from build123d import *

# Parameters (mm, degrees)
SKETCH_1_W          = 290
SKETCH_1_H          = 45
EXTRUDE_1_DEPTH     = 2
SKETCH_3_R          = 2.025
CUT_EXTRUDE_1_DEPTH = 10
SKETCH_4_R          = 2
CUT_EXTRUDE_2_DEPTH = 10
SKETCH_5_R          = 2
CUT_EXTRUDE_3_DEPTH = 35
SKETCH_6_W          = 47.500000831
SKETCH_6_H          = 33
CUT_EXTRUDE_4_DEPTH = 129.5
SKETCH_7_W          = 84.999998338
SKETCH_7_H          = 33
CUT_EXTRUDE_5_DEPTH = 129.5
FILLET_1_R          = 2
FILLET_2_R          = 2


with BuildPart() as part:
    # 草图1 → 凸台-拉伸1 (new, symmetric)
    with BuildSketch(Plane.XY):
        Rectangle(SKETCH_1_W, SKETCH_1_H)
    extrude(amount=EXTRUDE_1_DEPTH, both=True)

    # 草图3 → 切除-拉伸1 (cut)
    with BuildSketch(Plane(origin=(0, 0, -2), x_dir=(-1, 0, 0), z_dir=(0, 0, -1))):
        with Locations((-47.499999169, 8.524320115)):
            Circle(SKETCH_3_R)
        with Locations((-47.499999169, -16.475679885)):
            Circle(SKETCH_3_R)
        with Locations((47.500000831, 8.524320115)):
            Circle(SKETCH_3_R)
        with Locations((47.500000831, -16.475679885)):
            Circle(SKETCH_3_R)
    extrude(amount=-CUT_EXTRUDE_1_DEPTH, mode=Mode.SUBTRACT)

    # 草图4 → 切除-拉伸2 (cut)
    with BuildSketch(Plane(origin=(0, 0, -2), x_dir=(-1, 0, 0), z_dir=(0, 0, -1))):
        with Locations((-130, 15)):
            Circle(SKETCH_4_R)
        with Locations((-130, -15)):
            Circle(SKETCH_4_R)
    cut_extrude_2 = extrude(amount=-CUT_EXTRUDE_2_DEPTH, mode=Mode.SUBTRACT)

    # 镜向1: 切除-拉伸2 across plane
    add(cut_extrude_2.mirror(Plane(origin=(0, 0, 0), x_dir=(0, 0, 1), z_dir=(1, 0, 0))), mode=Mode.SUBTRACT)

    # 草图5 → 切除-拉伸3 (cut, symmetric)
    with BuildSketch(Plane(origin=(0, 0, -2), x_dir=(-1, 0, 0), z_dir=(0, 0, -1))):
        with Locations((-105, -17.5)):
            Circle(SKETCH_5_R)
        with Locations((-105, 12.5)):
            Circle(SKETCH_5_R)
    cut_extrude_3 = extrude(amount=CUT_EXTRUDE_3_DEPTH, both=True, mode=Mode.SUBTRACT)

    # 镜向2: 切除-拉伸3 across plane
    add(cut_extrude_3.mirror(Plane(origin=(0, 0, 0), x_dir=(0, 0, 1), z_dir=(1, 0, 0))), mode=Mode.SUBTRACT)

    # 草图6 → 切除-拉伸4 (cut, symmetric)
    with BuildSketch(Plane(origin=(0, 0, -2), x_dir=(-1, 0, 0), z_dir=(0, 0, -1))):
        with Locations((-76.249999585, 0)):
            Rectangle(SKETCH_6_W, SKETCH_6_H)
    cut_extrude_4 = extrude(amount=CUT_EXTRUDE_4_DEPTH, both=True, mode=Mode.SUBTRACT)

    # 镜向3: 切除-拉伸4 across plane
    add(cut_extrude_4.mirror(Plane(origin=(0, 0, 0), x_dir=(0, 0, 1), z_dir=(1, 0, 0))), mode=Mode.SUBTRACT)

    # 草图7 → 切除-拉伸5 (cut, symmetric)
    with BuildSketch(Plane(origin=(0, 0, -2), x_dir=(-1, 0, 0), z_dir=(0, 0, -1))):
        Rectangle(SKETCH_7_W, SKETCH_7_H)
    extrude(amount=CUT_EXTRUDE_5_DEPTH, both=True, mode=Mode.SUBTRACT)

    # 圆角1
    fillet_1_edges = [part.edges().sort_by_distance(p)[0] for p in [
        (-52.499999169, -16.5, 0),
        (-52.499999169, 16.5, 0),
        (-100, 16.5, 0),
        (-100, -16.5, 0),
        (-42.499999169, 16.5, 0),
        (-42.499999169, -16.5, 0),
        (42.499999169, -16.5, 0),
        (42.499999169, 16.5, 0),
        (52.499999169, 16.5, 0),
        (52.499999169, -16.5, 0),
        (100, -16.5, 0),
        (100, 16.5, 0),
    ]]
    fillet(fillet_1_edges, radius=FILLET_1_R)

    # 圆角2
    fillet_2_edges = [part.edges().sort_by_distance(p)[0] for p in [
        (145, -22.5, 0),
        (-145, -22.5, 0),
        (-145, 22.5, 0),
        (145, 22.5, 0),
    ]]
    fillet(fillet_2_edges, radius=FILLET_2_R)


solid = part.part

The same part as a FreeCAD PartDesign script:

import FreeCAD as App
import Part
import Sketcher
from FreeCAD import Vector
Q = App.Units.Quantity


def edges_at(feature, points):
    """Names of the edges that pass closest to the given points."""
    edges = feature.Shape.Edges
    near = lambda p: min(range(len(edges)), key=lambda i: edges[i].distToShape(Part.Vertex(*p))[0])
    return sorted({f"Edge{near(p) + 1}" for p in points})

doc = App.newDocument("Part")
body = doc.addObject("PartDesign::Body", "Body")

sketch1 = body.newObject("Sketcher::SketchObject", "Sketch")
sketch1.AttachmentSupport = (doc.getObject("XY_Plane"), [""])
sketch1.MapMode = "FlatFace"
sketch1.addGeometry([
    Part.LineSegment(Vector(-145, 22, 0), Vector(-145, -22, 0)),
    Part.LineSegment(Vector(-145, -22, 0), Vector(145, -22, 0)),
    Part.LineSegment(Vector(145, -22, 0), Vector(145, 22, 0)),
    Part.LineSegment(Vector(145, 22, 0), Vector(-145, 22, 0)),
], False)
sketch1.addConstraint([
    Sketcher.Constraint("Coincident", 0, 2, 1, 1),
    Sketcher.Constraint("Coincident", 1, 2, 2, 1),
    Sketcher.Constraint("Coincident", 2, 2, 3, 1),
    Sketcher.Constraint("Coincident", 3, 2, 0, 1),
    Sketcher.Constraint("Vertical", 0),
    Sketcher.Constraint("Horizontal", 1),
    Sketcher.Constraint("Vertical", 2),
    Sketcher.Constraint("Horizontal", 3),
    Sketcher.Constraint("Symmetric", 0, 2, 2, 2, -1, 1),
    Sketcher.Constraint("DistanceX", 1, 1, 1, 2, Q("290 mm")),
    Sketcher.Constraint("DistanceY", 0, 2, 0, 1, Q("45 mm")),
])
pad1 = body.newObject("PartDesign::Pad", "Pad")
pad1.Profile = sketch1
pad1.Length = 4
pad1.Midplane = True

sketch2 = body.newObject("Sketcher::SketchObject", "Sketch001")
sketch2.AttachmentSupport = (doc.getObject("XY_Plane"), [""])
sketch2.MapMode = "FlatFace"
sketch2.AttachmentOffset = App.Placement(Vector(0, 0, -2), App.Rotation())
sketch2.addGeometry([
    Part.Circle(Vector(47.5, 8.5, 0), Vector(0, 0, 1), 2),
    Part.Circle(Vector(47.5, -16.5, 0), Vector(0, 0, 1), 2),
    Part.Circle(Vector(-47.5, 8.5, 0), Vector(0, 0, 1), 2),
    Part.Circle(Vector(-47.5, -16.5, 0), Vector(0, 0, 1), 2),
], False)
sketch2.addConstraint([
    Sketcher.Constraint("Equal", 0, 1),
    Sketcher.Constraint("Equal", 1, 2),
    Sketcher.Constraint("Equal", 2, 3),
    Sketcher.Constraint("Symmetric", 0, 3, 2, 3, -2),
    Sketcher.Constraint("Symmetric", 1, 3, 3, 3, -2),
    Sketcher.Constraint("Vertical", 0, 3, 1, 3),
    Sketcher.Constraint("Diameter", 0, Q("4.05 mm")),
    Sketcher.Constraint("DistanceY", 1, 3, 0, 3, Q("25 mm")),
    Sketcher.Constraint("DistanceX", 2, 3, 0, 3, Q("95 mm")),
    Sketcher.Constraint("DistanceY", -1, 1, 0, 3, Q("8.52432 mm")),
])
pocket1 = body.newObject("PartDesign::Pocket", "Pocket")
pocket1.Profile = sketch2
pocket1.Length = 10
pocket1.Reversed = True

sketch3 = body.newObject("Sketcher::SketchObject", "Sketch002")
sketch3.AttachmentSupport = (doc.getObject("XY_Plane"), [""])
sketch3.MapMode = "FlatFace"
sketch3.AttachmentOffset = App.Placement(Vector(0, 0, -2), App.Rotation())
sketch3.addGeometry([
    Part.Circle(Vector(130, 15, 0), Vector(0, 0, 1), 2),
    Part.Circle(Vector(130, -15, 0), Vector(0, 0, 1), 2),
], False)
sketch3.addConstraint([
    Sketcher.Constraint("Equal", 0, 1),
    Sketcher.Constraint("Symmetric", 0, 3, 1, 3, -1),
    Sketcher.Constraint("Diameter", 0, Q("4 mm")),
    Sketcher.Constraint("DistanceX", -1, 1, 0, 3, Q("130 mm")),
    Sketcher.Constraint("DistanceY", -1, 1, 0, 3, Q("15 mm")),
])
pocket2 = body.newObject("PartDesign::Pocket", "Pocket001")
pocket2.Profile = sketch3
pocket2.Length = 10
pocket2.Reversed = True
doc.recompute()

mirrored = body.newObject("PartDesign::Mirrored", "Mirrored")
mirrored.Originals = [pocket2]
mirrored.MirrorPlane = (doc.getObject("YZ_Plane"), [""])
body.Tip = mirrored

sketch4 = body.newObject("Sketcher::SketchObject", "Sketch003")
sketch4.AttachmentSupport = (doc.getObject("XY_Plane"), [""])
sketch4.MapMode = "FlatFace"
sketch4.AttachmentOffset = App.Placement(Vector(0, 0, -2), App.Rotation())
sketch4.addGeometry([
    Part.Circle(Vector(105, -17.5, 0), Vector(0, 0, 1), 2),
    Part.Circle(Vector(105, 12.5, 0), Vector(0, 0, 1), 2),
], False)
sketch4.addConstraint([
    Sketcher.Constraint("Equal", 0, 1),
    Sketcher.Constraint("Vertical", 0, 3, 1, 3),
    Sketcher.Constraint("Diameter", 0, Q("4 mm")),
    Sketcher.Constraint("DistanceX", -1, 1, 0, 3, Q("105 mm")),
    Sketcher.Constraint("DistanceY", 0, 3, 1, 3, Q("30 mm")),
    Sketcher.Constraint("DistanceY", 0, 3, -1, 1, Q("17.5 mm")),
])
pocket3 = body.newObject("PartDesign::Pocket", "Pocket002")
pocket3.Profile = sketch4
pocket3.Length = 70
pocket3.Midplane = True
doc.recompute()

mirrored2 = body.newObject("PartDesign::Mirrored", "Mirrored001")
mirrored2.Originals = [pocket3]
mirrored2.MirrorPlane = (doc.getObject("YZ_Plane"), [""])
body.Tip = mirrored2

sketch5 = body.newObject("Sketcher::SketchObject", "Sketch004")
sketch5.AttachmentSupport = (doc.getObject("XY_Plane"), [""])
sketch5.MapMode = "FlatFace"
sketch5.AttachmentOffset = App.Placement(Vector(0, 0, -2), App.Rotation())
sketch5.addGeometry([
    Part.LineSegment(Vector(100, 16, 0), Vector(100, -16, 0)),
    Part.LineSegment(Vector(100, -16, 0), Vector(52, -16, 0)),
    Part.LineSegment(Vector(52, -16, 0), Vector(52, 16, 0)),
    Part.LineSegment(Vector(52, 16, 0), Vector(100, 16, 0)),
], False)
sketch5.addConstraint([
    Sketcher.Constraint("Coincident", 0, 2, 1, 1),
    Sketcher.Constraint("Coincident", 1, 2, 2, 1),
    Sketcher.Constraint("Coincident", 2, 2, 3, 1),
    Sketcher.Constraint("Coincident", 3, 2, 0, 1),
    Sketcher.Constraint("Vertical", 0),
    Sketcher.Constraint("Horizontal", 1),
    Sketcher.Constraint("Vertical", 2),
    Sketcher.Constraint("Horizontal", 3),
    Sketcher.Constraint("DistanceY", 0, 2, 0, 1, Q("33 mm")),
    Sketcher.Constraint("DistanceX", 1, 2, 1, 1, Q("47.500001 mm")),
    Sketcher.Constraint("DistanceX", -1, 1, 0, 2, Q("100 mm")),
    Sketcher.Constraint("DistanceY", 0, 2, -1, 1, Q("16.5 mm")),
])
pocket4 = body.newObject("PartDesign::Pocket", "Pocket003")
pocket4.Profile = sketch5
pocket4.Length = 259
pocket4.Midplane = True
doc.recompute()

mirrored3 = body.newObject("PartDesign::Mirrored", "Mirrored002")
mirrored3.Originals = [pocket4]
mirrored3.MirrorPlane = (doc.getObject("YZ_Plane"), [""])
body.Tip = mirrored3

sketch6 = body.newObject("Sketcher::SketchObject", "Sketch005")
sketch6.AttachmentSupport = (doc.getObject("XY_Plane"), [""])
sketch6.MapMode = "FlatFace"
sketch6.AttachmentOffset = App.Placement(Vector(0, 0, -2), App.Rotation())
sketch6.addGeometry([
    Part.LineSegment(Vector(42, 16, 0), Vector(42, -16, 0)),
    Part.LineSegment(Vector(42, -16, 0), Vector(-42, -16, 0)),
    Part.LineSegment(Vector(-42, -16, 0), Vector(-42, 16, 0)),
    Part.LineSegment(Vector(-42, 16, 0), Vector(42, 16, 0)),
], False)
sketch6.addConstraint([
    Sketcher.Constraint("Coincident", 0, 2, 1, 1),
    Sketcher.Constraint("Coincident", 1, 2, 2, 1),
    Sketcher.Constraint("Coincident", 2, 2, 3, 1),
    Sketcher.Constraint("Coincident", 3, 2, 0, 1),
    Sketcher.Constraint("Vertical", 0),
    Sketcher.Constraint("Horizontal", 1),
    Sketcher.Constraint("Vertical", 2),
    Sketcher.Constraint("Horizontal", 3),
    Sketcher.Constraint("Symmetric", 0, 2, 2, 2, -1, 1),
    Sketcher.Constraint("DistanceX", 1, 2, 1, 1, Q("84.999998 mm")),
    Sketcher.Constraint("DistanceY", 0, 2, 0, 1, Q("33 mm")),
])
pocket5 = body.newObject("PartDesign::Pocket", "Pocket004")
pocket5.Profile = sketch6
pocket5.Length = 259
pocket5.Midplane = True
doc.recompute()

fillet = body.newObject("PartDesign::Fillet", "Fillet")
fillet.Base = (pocket5, edges_at(pocket5, [
    (-52.5, -16.5, 0),
    (-52.5, 16.5, 0),
    (-100, 16.5, 0),
    (-100, -16.5, 0),
    (-42.5, 16.5, 0),
    (-42.5, -16.5, 0),
    (42.5, -16.5, 0),
    (42.5, 16.5, 0),
    (52.5, 16.5, 0),
    (52.5, -16.5, 0),
    (100, -16.5, 0),
    (100, 16.5, 0),
]))
fillet.Radius = 2
doc.recompute()

fillet2 = body.newObject("PartDesign::Fillet", "Fillet001")
fillet2.Base = (fillet, edges_at(fillet, [
    (145, -22.5, 0),
    (-145, -22.5, 0),
    (-145, 22.5, 0),
    (145, 22.5, 0),
]))
fillet2.Radius = 2

doc.recompute()
